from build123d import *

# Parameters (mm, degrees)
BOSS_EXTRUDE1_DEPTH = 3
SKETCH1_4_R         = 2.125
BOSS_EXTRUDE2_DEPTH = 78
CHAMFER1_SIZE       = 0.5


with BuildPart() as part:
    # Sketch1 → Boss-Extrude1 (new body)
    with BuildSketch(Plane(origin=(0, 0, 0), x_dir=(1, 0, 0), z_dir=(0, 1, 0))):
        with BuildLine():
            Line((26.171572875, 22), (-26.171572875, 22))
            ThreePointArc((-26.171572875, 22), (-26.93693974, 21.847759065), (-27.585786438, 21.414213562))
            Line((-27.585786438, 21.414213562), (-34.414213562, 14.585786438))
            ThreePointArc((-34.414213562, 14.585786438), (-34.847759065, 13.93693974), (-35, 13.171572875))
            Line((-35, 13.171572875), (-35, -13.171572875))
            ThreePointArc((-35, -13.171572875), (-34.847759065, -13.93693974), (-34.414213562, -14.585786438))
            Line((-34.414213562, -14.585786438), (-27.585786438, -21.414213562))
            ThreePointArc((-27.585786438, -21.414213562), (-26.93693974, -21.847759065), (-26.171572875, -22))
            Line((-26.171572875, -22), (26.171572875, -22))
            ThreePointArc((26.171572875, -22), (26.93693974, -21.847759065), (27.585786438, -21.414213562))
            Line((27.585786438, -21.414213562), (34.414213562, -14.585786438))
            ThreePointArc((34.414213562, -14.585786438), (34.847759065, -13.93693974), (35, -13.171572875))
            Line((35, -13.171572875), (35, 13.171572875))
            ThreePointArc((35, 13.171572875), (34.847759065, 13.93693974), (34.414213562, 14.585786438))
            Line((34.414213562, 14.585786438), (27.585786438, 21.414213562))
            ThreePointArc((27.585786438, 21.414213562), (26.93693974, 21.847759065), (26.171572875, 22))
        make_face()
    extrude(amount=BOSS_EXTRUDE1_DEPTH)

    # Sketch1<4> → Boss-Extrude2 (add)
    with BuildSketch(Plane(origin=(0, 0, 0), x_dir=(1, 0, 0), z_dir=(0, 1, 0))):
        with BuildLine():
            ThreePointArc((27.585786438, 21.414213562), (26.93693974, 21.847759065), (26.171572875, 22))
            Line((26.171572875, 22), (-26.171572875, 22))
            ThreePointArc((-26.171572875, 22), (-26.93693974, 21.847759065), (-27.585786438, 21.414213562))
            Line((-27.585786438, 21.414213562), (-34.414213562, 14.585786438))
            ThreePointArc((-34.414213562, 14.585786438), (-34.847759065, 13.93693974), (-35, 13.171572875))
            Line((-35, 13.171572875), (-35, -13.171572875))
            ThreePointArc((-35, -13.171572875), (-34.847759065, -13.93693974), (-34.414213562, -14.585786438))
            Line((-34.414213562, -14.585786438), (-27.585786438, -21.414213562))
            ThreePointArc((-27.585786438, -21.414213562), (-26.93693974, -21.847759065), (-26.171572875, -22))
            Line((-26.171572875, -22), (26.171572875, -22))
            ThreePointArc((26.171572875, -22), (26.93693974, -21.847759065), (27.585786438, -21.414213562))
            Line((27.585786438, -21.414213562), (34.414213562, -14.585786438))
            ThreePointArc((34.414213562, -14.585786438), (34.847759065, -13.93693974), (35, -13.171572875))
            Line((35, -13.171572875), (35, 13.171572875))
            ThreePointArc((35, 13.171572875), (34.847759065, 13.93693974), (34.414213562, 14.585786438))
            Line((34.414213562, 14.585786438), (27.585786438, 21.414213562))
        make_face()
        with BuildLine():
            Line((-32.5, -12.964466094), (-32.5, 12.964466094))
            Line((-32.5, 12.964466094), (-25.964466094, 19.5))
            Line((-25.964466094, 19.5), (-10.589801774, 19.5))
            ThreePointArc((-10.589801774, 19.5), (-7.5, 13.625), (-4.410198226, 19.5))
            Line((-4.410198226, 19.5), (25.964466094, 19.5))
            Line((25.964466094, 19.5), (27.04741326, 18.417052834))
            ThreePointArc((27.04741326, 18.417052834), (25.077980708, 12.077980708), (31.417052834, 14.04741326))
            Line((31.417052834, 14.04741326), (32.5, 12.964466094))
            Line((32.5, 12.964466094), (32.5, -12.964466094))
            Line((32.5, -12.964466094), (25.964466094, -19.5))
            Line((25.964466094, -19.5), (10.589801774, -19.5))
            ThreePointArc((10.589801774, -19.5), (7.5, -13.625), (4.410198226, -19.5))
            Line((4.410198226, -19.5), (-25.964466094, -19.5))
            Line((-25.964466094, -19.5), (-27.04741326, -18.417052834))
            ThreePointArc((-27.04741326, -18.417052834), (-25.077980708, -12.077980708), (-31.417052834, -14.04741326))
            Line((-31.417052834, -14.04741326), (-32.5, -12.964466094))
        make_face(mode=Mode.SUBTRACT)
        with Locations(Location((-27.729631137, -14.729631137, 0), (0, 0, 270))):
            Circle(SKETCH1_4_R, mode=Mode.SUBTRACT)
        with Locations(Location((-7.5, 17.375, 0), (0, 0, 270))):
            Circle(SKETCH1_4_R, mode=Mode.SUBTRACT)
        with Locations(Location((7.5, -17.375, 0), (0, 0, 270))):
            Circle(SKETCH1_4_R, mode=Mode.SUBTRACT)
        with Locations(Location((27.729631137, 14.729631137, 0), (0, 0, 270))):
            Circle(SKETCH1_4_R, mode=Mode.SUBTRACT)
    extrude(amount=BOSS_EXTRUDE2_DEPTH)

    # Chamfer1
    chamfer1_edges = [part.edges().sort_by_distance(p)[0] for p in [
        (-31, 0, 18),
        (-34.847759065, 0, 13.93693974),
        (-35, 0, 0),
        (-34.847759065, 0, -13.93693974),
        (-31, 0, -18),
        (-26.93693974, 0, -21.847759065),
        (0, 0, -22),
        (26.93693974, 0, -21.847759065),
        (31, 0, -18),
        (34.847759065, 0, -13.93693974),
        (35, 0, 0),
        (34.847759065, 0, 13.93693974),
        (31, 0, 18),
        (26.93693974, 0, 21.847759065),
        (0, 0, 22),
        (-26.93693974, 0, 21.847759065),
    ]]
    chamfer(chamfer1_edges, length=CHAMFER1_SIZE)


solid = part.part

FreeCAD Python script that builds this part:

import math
import FreeCAD as App
import Part
import Sketcher
Q = App.Units.Quantity


def edges_at(feature, points):
    """Names of the edges that pass closest to the given points."""
    edges = feature.Shape.Edges
    near = lambda p: min(range(len(edges)), key=lambda i: edges[i].distToShape(Part.Vertex(*p))[0])
    return sorted({f"Edge{near(p) + 1}" for p in points})

doc = App.newDocument("Part")
body = doc.addObject("PartDesign::Body", "Body")

sketch1 = doc.addObject("Sketcher::SketchObject", "Sketch")
body.addObject(sketch1)
sketch1.AttachmentSupport = (doc.XZ_Plane, [""])
sketch1.MapMode = "FlatFace"
sketch1.addGeometry([
    Part.LineSegment(App.Vector(26.2, -22, 0), App.Vector(-26.2, -22, 0)),
    Part.ArcOfCircle(Part.Circle(App.Vector(-26.2, -20, 0), App.Vector(0, 0, 1), 2), math.radians(-135), math.radians(-90)),
    Part.LineSegment(App.Vector(-27.6, -21.4, 0), App.Vector(-34.4, -14.6, 0)),
    Part.ArcOfCircle(Part.Circle(App.Vector(-33, -13.2, 0), App.Vector(0, 0, 1), 2), math.radians(180), math.radians(225)),
    Part.LineSegment(App.Vector(-35, -13.2, 0), App.Vector(-35, 13.2, 0)),
    Part.ArcOfCircle(Part.Circle(App.Vector(-33, 13.2, 0), App.Vector(0, 0, 1), 2), math.radians(135), math.radians(180)),
    Part.LineSegment(App.Vector(-34.4, 14.6, 0), App.Vector(-27.6, 21.4, 0)),
    Part.ArcOfCircle(Part.Circle(App.Vector(-26.2, 20, 0), App.Vector(0, 0, 1), 2), math.radians(90), math.radians(135)),
    Part.LineSegment(App.Vector(-26.2, 22, 0), App.Vector(26.2, 22, 0)),
    Part.ArcOfCircle(Part.Circle(App.Vector(26.2, 20, 0), App.Vector(0, 0, 1), 2), math.radians(45), math.radians(90)),
    Part.LineSegment(App.Vector(27.6, 21.4, 0), App.Vector(34.4, 14.6, 0)),
    Part.ArcOfCircle(Part.Circle(App.Vector(33, 13.2, 0), App.Vector(0, 0, 1), 2), math.radians(0), math.radians(45)),
    Part.LineSegment(App.Vector(35, 13.2, 0), App.Vector(35, -13.2, 0)),
    Part.ArcOfCircle(Part.Circle(App.Vector(33, -13.2, 0), App.Vector(0, 0, 1), 2), math.radians(-45), math.radians(0)),
    Part.LineSegment(App.Vector(34.4, -14.6, 0), App.Vector(27.6, -21.4, 0)),
    Part.ArcOfCircle(Part.Circle(App.Vector(26.2, -20, 0), App.Vector(0, 0, 1), 2), math.radians(-90), math.radians(-45)),
], False)
sketch1.addConstraint([
    Sketcher.Constraint("Tangent", 0, 2, 1, 2),
    Sketcher.Constraint("Tangent", 1, 1, 2, 1),
    Sketcher.Constraint("Tangent", 2, 2, 3, 2),
    Sketcher.Constraint("Tangent", 3, 1, 4, 1),
    Sketcher.Constraint("Tangent", 4, 2, 5, 2),
    Sketcher.Constraint("Tangent", 5, 1, 6, 1),
    Sketcher.Constraint("Tangent", 6, 2, 7, 2),
    Sketcher.Constraint("Tangent", 7, 1, 8, 1),
    Sketcher.Constraint("Tangent", 8, 2, 9, 2),
    Sketcher.Constraint("Tangent", 9, 1, 10, 1),
    Sketcher.Constraint("Tangent", 10, 2, 11, 2),
    Sketcher.Constraint("Tangent", 11, 1, 12, 1),
    Sketcher.Constraint("Tangent", 12, 2, 13, 2),
    Sketcher.Constraint("Tangent", 13, 1, 14, 1),
    Sketcher.Constraint("Tangent", 14, 2, 15, 2),
    Sketcher.Constraint("Tangent", 15, 1, 0, 1),
    Sketcher.Constraint("Horizontal", 0),
    Sketcher.Constraint("Vertical", 4),
    Sketcher.Constraint("Horizontal", 8),
    Sketcher.Constraint("Vertical", 12),
    Sketcher.Constraint("Equal", 1, 3),
    Sketcher.Constraint("Equal", 3, 5),
    Sketcher.Constraint("Equal", 5, 7),
    Sketcher.Constraint("Equal", 7, 9),
    Sketcher.Constraint("Equal", 9, 11),
    Sketcher.Constraint("Equal", 11, 13),
    Sketcher.Constraint("Equal", 13, 15),
    Sketcher.Constraint("Symmetric", 1, 3, 9, 3, -1, 1),
    Sketcher.Constraint("Symmetric", 3, 3, 11, 3, -1, 1),
    Sketcher.Constraint("Symmetric", 5, 1, 13, 1, -1, 1),
    Sketcher.Constraint("Symmetric", 6, 2, 9, 1, -2),
    Sketcher.Constraint("Perpendicular", 2, 6),
    Sketcher.Constraint("Radius", 1, Q("2 mm")),
    Sketcher.Constraint("DistanceY", 1, 3, -1, 1, Q("20 mm")),
    Sketcher.Constraint("DistanceX", 3, 3, -1, 1, Q("33 mm")),
    Sketcher.Constraint("DistanceX", 0, 2, 0, 1, Q("52.343146 mm")),
])
pad1 = doc.addObject("PartDesign::Pad", "Pad")
body.addObject(pad1)
pad1.Profile = sketch1
pad1.Length = 3
pad1.Reversed = True

sketch2 = doc.addObject("Sketcher::SketchObject", "Sketch001")
body.addObject(sketch2)
sketch2.AttachmentSupport = (doc.XZ_Plane, [""])
sketch2.MapMode = "FlatFace"
sketch2.addGeometry([
    Part.ArcOfCircle(Part.Circle(App.Vector(26.2, -20, 0), App.Vector(0, 0, 1), 2), math.radians(-90), math.radians(-45)),
    Part.LineSegment(App.Vector(26.2, -22, 0), App.Vector(-26.2, -22, 0)),
    Part.ArcOfCircle(Part.Circle(App.Vector(-26.2, -20, 0), App.Vector(0, 0, 1), 2), math.radians(-135), math.radians(-90)),
    Part.LineSegment(App.Vector(-27.6, -21.4, 0), App.Vector(-34.4, -14.6, 0)),
    Part.ArcOfCircle(Part.Circle(App.Vector(-33, -13.2, 0), App.Vector(0, 0, 1), 2), math.radians(180), math.radians(225)),
    Part.LineSegment(App.Vector(-35, -13.2, 0), App.Vector(-35, 13.2, 0)),
    Part.ArcOfCircle(Part.Circle(App.Vector(-33, 13.2, 0), App.Vector(0, 0, 1), 2), math.radians(135), math.radians(180)),
    Part.LineSegment(App.Vector(-34.4, 14.6, 0), App.Vector(-27.6, 21.4, 0)),
    Part.ArcOfCircle(Part.Circle(App.Vector(-26.2, 20, 0), App.Vector(0, 0, 1), 2), math.radians(90), math.radians(135)),
    Part.LineSegment(App.Vector(-26.2, 22, 0), App.Vector(26.2, 22, 0)),
    Part.ArcOfCircle(Part.Circle(App.Vector(26.2, 20, 0), App.Vector(0, 0, 1), 2), math.radians(45), math.radians(90)),
    Part.LineSegment(App.Vector(27.6, 21.4, 0), App.Vector(34.4, 14.6, 0)),
    Part.ArcOfCircle(Part.Circle(App.Vector(33, 13.2, 0), App.Vector(0, 0, 1), 2), math.radians(0), math.radians(45)),
    Part.LineSegment(App.Vector(35, 13.2, 0), App.Vector(35, -13.2, 0)),
    Part.ArcOfCircle(Part.Circle(App.Vector(33, -13.2, 0), App.Vector(0, 0, 1), 2), math.radians(-45), math.radians(0)),
    Part.LineSegment(App.Vector(34.4, -14.6, 0), App.Vector(27.6, -21.4, 0)),
    Part.Circle(App.Vector(-27.7, 14.7, 0), App.Vector(0, 0, 1), 2.1),
    Part.Circle(App.Vector(7.5, 17.4, 0), App.Vector(0, 0, 1), 2.1),
    Part.Circle(App.Vector(-7.5, -17.4, 0), App.Vector(0, 0, 1), 2.1),
    Part.LineSegment(App.Vector(-31.4, 14, 0), App.Vector(-32.5, 13, 0)),
    Part.LineSegment(App.Vector(-32.5, 13, 0), App.Vector(-32.5, -13, 0)),
    Part.LineSegment(App.Vector(-32.5, -13, 0), App.Vector(-26, -19.5, 0)),
    Part.LineSegment(App.Vector(-26, -19.5, 0), App.Vector(-10.6, -19.5, 0)),
    Part.ArcOfCircle(Part.Circle(App.Vector(-7.5, -17.4, 0), App.Vector(0, 0, 1), 3.8), math.radians(-35), math.radians(215)),
    Part.LineSegment(App.Vector(-4.4, -19.5, 0), App.Vector(26, -19.5, 0)),
    Part.LineSegment(App.Vector(26, -19.5, 0), App.Vector(27, -18.4, 0)),
    Part.ArcOfCircle(Part.Circle(App.Vector(27.7, -14.7, 0), App.Vector(0, 0, 1), 3.8), math.radians(10), math.radians(260)),
    Part.LineSegment(App.Vector(31.4, -14, 0), App.Vector(32.5, -13, 0)),
    Part.LineSegment(App.Vector(32.5, -13, 0), App.Vector(32.5, 13, 0)),
    Part.LineSegment(App.Vector(32.5, 13, 0), App.Vector(26, 19.5, 0)),
    Part.LineSegment(App.Vector(26, 19.5, 0), App.Vector(10.6, 19.5, 0)),
    Part.ArcOfCircle(Part.Circle(App.Vector(7.5, 17.4, 0), App.Vector(0, 0, 1), 3.8), math.radians(145), math.radians(395)),
    Part.LineSegment(App.Vector(4.4, 19.5, 0), App.Vector(-26, 19.5, 0)),
    Part.LineSegment(App.Vector(-26, 19.5, 0), App.Vector(-27, 18.4, 0)),
    Part.ArcOfCircle(Part.Circle(App.Vector(-27.7, 14.7, 0), App.Vector(0, 0, 1), 3.8), math.radians(-170), math.radians(80)),
    Part.Circle(App.Vector(27.7, -14.7, 0), App.Vector(0, 0, 1), 2.1),
], False)
sketch2.addConstraint([
    Sketcher.Constraint("Tangent", 0, 1, 1, 1),
    Sketcher.Constraint("Tangent", 1, 2, 2, 2),
    Sketcher.Constraint("Tangent", 2, 1, 3, 1),
    Sketcher.Constraint("Tangent", 3, 2, 4, 2),
    Sketcher.Constraint("Tangent", 4, 1, 5, 1),
    Sketcher.Constraint("Tangent", 5, 2, 6, 2),
    Sketcher.Constraint("Tangent", 6, 1, 7, 1),
    Sketcher.Constraint("Tangent", 7, 2, 8, 2),
    Sketcher.Constraint("Tangent", 8, 1, 9, 1),
    Sketcher.Constraint("Tangent", 9, 2, 10, 2),
    Sketcher.Constraint("Tangent", 10, 1, 11, 1),
    Sketcher.Constraint("Tangent", 11, 2, 12, 2),
    Sketcher.Constraint("Tangent", 12, 1, 13, 1),
    Sketcher.Constraint("Tangent", 13, 2, 14, 2),
    Sketcher.Constraint("Tangent", 14, 1, 15, 1),
    Sketcher.Constraint("Tangent", 15, 2, 0, 2),
    Sketcher.Constraint("Coincident", 19, 2, 20, 1),
    Sketcher.Constraint("Coincident", 20, 2, 21, 1),
    Sketcher.Constraint("Coincident", 21, 2, 22, 1),
    Sketcher.Constraint("Coincident", 22, 2, 23, 2),
    Sketcher.Constraint("Coincident", 23, 1, 24, 1),
    Sketcher.Constraint("Coincident", 24, 2, 25, 1),
    Sketcher.Constraint("Coincident", 25, 2, 26, 2),
    Sketcher.Constraint("Coincident", 26, 1, 27, 1),
    Sketcher.Constraint("Coincident", 27, 2, 28, 1),
    Sketcher.Constraint("Coincident", 28, 2, 29, 1),
    Sketcher.Constraint("Coincident", 29, 2, 30, 1),
    Sketcher.Constraint("Coincident", 30, 2, 31, 2),
    Sketcher.Constraint("Coincident", 31, 1, 32, 1),
    Sketcher.Constraint("Coincident", 32, 2, 33, 1),
    Sketcher.Constraint("Coincident", 33, 2, 34, 2),
    Sketcher.Constraint("Coincident", 34, 1, 19, 1),
    Sketcher.Constraint("Horizontal", 1),
    Sketcher.Constraint("Vertical", 5),
    Sketcher.Constraint("Horizontal", 9),
    Sketcher.Constraint("Vertical", 13),
    Sketcher.Constraint("Vertical", 20),
    Sketcher.Constraint("Horizontal", 22),
    Sketcher.Constraint("Horizontal", 24),
    Sketcher.Constraint("Vertical", 28),
    Sketcher.Constraint("Horizontal", 30),
    Sketcher.Constraint("Horizontal", 32),
    Sketcher.Constraint("Coincident", 23, 3, 18, 3),
    Sketcher.Constraint("Coincident", 31, 3, 17, 3),
    Sketcher.Constraint("Coincident", 34, 3, 16, 3),
    Sketcher.Constraint("Coincident", 35, 3, 26, 3),
    Sketcher.Constraint("Equal", 0, 2),
    Sketcher.Constraint("Equal", 2, 4),
    Sketcher.Constraint("Equal", 4, 6),
    Sketcher.Constraint("Equal", 6, 8),
    Sketcher.Constraint("Equal", 8, 10),
    Sketcher.Constraint("Equal", 10, 12),
    Sketcher.Constraint("Equal", 12, 14),
    Sketcher.Constraint("Equal", 16, 17),
    Sketcher.Constraint("Equal", 17, 18),
    Sketcher.Constraint("Equal", 23, 26),
    Sketcher.Constraint("Equal", 26, 31),
    Sketcher.Constraint("Equal", 31, 34),
    Sketcher.Constraint("Equal", 18, 35),
    Sketcher.Constraint("Symmetric", 0, 3, 8, 3, -1, 1),
    Sketcher.Constraint("Symmetric", 4, 3, 12, 3, -1, 1),
    Sketcher.Constraint("Symmetric", 17, 3, 18, 3, -1, 1),
    Sketcher.Constraint("Symmetric", 16, 3, 26, 3, -1, 1),
    Sketcher.Constraint("Symmetric", 19, 2, 27, 2, -1, 1),
    Sketcher.Constraint("Symmetric", 21, 2, 29, 2, -1, 1),
    Sketcher.Constraint("Symmetric", 24, 2, 32, 2, -1, 1),
    Sketcher.Constraint("Symmetric", 7, 2, 10, 1, -2),
    Sketcher.Constraint("Symmetric", 3, 2, 14, 1, -2),
    Sketcher.Constraint("Symmetric", 21, 2, 24, 2, -2),
    Sketcher.Constraint("Perpendicular", 3, 7),
    Sketcher.Constraint("Parallel", 15, 19),
    Sketcher.Constraint("Perpendicular", 19, 21),
    Sketcher.Constraint("Perpendicular", 21, 25),
    Sketcher.Constraint("Parallel", 25, 27),
    Sketcher.Constraint("Perpendicular", 27, 29),
    Sketcher.Constraint("Perpendicular", 29, 33),
    Sketcher.Constraint("Horizontal", 20, 2, 27, 2),
    Sketcher.Constraint("Equal", 19, 25),
    Sketcher.Constraint("Radius", 0, Q("2 mm")),
    Sketcher.Constraint("Diameter", 16, Q("4.25 mm")),
    Sketcher.Constraint("Radius", 23, Q("3.75 mm")),
    Sketcher.Constraint("DistanceY", 0, 3, -1, 1, Q("20 mm")),
    Sketcher.Constraint("DistanceX", 4, 3, -1, 1, Q("33 mm")),
    Sketcher.Constraint("DistanceX", 18, 3, 17, 3, Q("15 mm")),
    Sketcher.Constraint("DistanceX", 19, 2, -1, 1, Q("32.5 mm")),
    Sketcher.Constraint("DistanceY", 21, 2, -1, 1, Q("19.5 mm")),
    Sketcher.Constraint("DistanceY", 18, 3, 17, 3, Q("34.75 mm")),
    Sketcher.Constraint("Distance", 19, Q("1.531519 mm")),
    Sketcher.Constraint("Distance", 21, Q("9.242641 mm")),
    Sketcher.Constraint("DistanceX", 1, 2, 1, 1, Q("52.343146 mm")),
])
pad2 = doc.addObject("PartDesign::Pad", "Pad001")
body.addObject(pad2)
pad2.Profile = sketch2
pad2.Length = 78
pad2.Reversed = True
doc.recompute()

chamfer = doc.addObject("PartDesign::Chamfer", "Chamfer")
body.addObject(chamfer)
chamfer.Base = (pad2, edges_at(pad2, [
    (-31, 0, 18),
    (-34.848, 0, 13.937),
    (-35, 0, 0),
    (-34.848, 0, -13.937),
    (-31, 0, -18),
    (-26.937, 0, -21.848),
    (0, 0, -22),
    (26.937, 0, -21.848),
    (31, 0, -18),
    (34.848, 0, -13.937),
    (35, 0, 0),
    (34.848, 0, 13.937),
    (31, 0, 18),
    (26.937, 0, 21.848),
    (0, 0, 22),
    (-26.937, 0, 21.848),
]))
chamfer.Size = 0.5

doc.recompute()
